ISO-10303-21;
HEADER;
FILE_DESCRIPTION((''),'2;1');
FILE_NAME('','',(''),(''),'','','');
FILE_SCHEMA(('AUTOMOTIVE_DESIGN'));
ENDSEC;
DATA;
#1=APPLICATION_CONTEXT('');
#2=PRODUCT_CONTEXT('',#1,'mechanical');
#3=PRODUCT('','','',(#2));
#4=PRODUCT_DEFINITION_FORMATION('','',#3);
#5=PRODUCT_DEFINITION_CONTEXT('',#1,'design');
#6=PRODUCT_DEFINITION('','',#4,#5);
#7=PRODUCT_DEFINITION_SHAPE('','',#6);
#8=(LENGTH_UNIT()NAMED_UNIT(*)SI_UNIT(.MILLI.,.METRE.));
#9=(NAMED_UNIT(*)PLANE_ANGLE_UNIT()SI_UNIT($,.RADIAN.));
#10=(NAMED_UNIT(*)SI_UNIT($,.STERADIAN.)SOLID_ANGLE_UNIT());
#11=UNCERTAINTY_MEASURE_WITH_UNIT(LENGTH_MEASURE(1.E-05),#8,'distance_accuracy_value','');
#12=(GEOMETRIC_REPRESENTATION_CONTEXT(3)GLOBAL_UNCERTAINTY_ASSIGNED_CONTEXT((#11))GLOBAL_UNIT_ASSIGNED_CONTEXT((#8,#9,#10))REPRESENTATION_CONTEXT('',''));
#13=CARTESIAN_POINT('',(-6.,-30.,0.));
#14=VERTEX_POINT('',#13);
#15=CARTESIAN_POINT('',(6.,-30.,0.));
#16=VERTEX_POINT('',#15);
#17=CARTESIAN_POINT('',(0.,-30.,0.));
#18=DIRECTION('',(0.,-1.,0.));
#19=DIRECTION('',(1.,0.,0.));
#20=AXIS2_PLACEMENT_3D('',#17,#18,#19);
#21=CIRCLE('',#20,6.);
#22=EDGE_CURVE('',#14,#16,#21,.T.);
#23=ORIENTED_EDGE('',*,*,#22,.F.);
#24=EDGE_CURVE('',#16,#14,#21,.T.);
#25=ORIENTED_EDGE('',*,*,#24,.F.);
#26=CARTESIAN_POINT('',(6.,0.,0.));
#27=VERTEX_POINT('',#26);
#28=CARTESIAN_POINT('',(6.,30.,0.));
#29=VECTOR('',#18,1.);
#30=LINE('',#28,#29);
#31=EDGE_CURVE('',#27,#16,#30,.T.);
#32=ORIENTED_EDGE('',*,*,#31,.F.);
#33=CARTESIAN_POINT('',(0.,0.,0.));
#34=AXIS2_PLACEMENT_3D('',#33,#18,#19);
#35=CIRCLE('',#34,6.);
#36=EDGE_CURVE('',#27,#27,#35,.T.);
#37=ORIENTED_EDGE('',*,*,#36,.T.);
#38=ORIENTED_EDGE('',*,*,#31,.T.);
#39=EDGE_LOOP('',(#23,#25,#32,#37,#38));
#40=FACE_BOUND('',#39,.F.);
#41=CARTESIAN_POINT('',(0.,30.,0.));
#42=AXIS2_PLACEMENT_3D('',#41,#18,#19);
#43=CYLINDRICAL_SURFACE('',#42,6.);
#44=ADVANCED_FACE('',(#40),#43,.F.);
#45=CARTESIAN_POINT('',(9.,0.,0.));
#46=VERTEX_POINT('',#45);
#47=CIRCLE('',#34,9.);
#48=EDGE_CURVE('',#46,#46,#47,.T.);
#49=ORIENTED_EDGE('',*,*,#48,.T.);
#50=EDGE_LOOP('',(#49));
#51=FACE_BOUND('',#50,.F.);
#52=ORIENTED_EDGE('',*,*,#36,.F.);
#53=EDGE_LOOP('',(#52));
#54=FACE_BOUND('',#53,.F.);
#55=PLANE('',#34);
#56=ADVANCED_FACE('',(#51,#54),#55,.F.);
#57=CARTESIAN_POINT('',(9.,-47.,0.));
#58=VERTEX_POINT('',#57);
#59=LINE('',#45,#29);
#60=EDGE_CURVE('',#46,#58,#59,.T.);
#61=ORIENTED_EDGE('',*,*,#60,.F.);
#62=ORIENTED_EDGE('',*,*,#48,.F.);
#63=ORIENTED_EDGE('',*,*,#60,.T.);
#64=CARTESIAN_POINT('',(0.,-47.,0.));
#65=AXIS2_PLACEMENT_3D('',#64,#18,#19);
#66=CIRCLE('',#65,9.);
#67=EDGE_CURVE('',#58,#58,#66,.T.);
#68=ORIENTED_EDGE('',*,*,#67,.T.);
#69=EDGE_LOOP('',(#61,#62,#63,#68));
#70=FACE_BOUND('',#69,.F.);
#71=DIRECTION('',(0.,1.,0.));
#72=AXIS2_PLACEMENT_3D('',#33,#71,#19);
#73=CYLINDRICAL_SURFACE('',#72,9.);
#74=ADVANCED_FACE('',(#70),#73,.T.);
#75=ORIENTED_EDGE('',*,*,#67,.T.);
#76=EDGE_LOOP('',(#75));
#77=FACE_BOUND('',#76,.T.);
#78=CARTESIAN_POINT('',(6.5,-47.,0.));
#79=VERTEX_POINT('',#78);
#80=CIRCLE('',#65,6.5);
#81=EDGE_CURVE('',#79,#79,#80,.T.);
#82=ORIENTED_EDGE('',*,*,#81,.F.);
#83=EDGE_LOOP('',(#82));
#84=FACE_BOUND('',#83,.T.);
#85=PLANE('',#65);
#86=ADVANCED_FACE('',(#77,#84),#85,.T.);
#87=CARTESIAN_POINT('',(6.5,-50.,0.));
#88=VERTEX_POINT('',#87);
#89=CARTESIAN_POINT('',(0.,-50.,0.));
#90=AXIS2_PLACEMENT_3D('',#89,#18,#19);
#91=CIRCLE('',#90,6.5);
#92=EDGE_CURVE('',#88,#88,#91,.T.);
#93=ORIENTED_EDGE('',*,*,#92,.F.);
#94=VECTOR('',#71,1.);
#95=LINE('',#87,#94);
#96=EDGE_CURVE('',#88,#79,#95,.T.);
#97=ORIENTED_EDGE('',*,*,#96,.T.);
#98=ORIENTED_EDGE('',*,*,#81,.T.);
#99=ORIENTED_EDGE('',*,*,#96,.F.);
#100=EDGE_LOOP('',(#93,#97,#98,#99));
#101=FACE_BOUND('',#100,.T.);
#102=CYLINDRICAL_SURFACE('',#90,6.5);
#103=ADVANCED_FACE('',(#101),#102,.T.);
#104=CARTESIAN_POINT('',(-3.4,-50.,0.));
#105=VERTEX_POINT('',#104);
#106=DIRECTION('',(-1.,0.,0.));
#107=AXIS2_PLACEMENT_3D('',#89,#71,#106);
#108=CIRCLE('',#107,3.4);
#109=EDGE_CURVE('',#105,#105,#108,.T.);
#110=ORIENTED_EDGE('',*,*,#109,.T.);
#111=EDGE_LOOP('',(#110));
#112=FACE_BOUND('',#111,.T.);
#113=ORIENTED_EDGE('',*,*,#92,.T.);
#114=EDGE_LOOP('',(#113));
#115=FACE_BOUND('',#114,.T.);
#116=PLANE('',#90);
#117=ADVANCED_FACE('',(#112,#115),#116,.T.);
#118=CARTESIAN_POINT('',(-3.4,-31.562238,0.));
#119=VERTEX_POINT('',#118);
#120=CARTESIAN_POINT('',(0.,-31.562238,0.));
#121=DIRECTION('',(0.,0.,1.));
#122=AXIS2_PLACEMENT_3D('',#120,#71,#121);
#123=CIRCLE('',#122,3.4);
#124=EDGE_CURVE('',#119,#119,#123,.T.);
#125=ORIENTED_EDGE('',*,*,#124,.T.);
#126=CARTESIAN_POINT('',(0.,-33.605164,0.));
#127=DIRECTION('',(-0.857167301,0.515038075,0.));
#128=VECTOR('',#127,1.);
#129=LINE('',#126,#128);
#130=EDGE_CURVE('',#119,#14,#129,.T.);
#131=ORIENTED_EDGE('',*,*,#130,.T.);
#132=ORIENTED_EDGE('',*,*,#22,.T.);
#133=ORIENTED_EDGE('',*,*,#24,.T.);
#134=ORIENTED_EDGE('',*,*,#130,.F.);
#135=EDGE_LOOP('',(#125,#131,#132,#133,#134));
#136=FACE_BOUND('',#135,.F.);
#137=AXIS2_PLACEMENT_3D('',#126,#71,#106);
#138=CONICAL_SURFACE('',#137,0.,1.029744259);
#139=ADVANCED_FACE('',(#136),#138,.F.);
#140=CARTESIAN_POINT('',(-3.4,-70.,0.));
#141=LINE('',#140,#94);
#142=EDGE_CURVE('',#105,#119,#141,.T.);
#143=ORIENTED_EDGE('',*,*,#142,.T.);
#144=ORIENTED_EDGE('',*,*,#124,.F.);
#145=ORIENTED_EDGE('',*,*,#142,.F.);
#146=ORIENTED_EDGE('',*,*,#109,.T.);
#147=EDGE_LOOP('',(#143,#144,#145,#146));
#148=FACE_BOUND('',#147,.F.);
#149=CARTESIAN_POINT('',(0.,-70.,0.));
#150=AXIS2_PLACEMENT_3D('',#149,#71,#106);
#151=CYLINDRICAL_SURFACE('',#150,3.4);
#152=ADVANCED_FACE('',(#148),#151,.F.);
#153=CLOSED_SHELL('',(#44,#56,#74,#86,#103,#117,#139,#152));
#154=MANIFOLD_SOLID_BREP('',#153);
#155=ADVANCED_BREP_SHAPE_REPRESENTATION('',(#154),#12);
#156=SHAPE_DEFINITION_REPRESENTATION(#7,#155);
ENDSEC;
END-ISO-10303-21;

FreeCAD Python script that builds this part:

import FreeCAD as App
import Part
import Sketcher

V = App.Vector
Q = App.Units.Quantity

doc = App.newDocument("Part")
body = doc.addObject("PartDesign::Body", "Body")

sketch1 = doc.addObject("Sketcher::SketchObject", "Sketch")
body.addObject(sketch1)
sketch1.AttachmentSupport = (doc.XZ_Plane, [""])
sketch1.MapMode = "FlatFace"
sketch1.addGeometry(Part.Circle(V(0, 0, 0), V(0, 0, 1), 9), False)
sketch1.addConstraint(Sketcher.Constraint("Coincident", 0, 3, -1, 1))
sketch1.addConstraint(Sketcher.Constraint("Diameter", 0, Q("18 mm")))
pad1 = doc.addObject("PartDesign::Pad", "Pad")
body.addObject(pad1)
pad1.Profile = sketch1
pad1.Length = 50

sketch2 = doc.addObject("Sketcher::SketchObject", "Sketch001")
body.addObject(sketch2)
sketch2.AttachmentSupport = (doc.XZ_Plane, [""])
sketch2.MapMode = "FlatFace"
sketch2.AttachmentOffset = App.Placement(V(0, 0, 50), App.Rotation())
sketch2.addGeometry(Part.Circle(V(0, 0, 0), V(0, 0, 1), 9), False)
sketch2.addGeometry(Part.Circle(V(0, 0, 0), V(0, 0, 1), 6.5), False)
sketch2.addConstraint(Sketcher.Constraint("Coincident", 0, 3, -1, 1))
sketch2.addConstraint(Sketcher.Constraint("Coincident", 1, 3, -1, 1))
sketch2.addConstraint(Sketcher.Constraint("Diameter", 0, Q("18 mm")))
sketch2.addConstraint(Sketcher.Constraint("Diameter", 1, Q("13 mm")))
pocket1 = doc.addObject("PartDesign::Pocket", "Pocket")
body.addObject(pocket1)
pocket1.Profile = sketch2
pocket1.Length = 3

sketch3 = doc.addObject("Sketcher::SketchObject", "Sketch002")
body.addObject(sketch3)
sketch3.AttachmentSupport = (doc.XZ_Plane, [""])
sketch3.MapMode = "FlatFace"
sketch3.AttachmentOffset = App.Placement(V(0, 0, 50), App.Rotation())
sketch3.addGeometry(Part.Circle(V(0, 0, 0), V(0, 0, 1), 3.4), False)
sketch3.addConstraint(Sketcher.Constraint("Coincident", 0, 3, -1, 1))
sketch3.addConstraint(Sketcher.Constraint("Diameter", 0, Q("6.8 mm")))
doc.recompute()
hole = doc.addObject("PartDesign::Hole", "Hole")
body.addObject(hole)
hole.Profile = sketch3
hole.ThreadType = "None"
hole.Diameter = 6.8
hole.DepthType = "Dimension"
hole.Depth = 20
hole.DrillPoint = "Angled"
hole.DrillPointAngle = 118

sketch4 = doc.addObject("Sketcher::SketchObject", "Sketch003")
body.addObject(sketch4)
sketch4.AttachmentSupport = (doc.XZ_Plane, [""])
sketch4.MapMode = "FlatFace"
sketch4.addGeometry(Part.Circle(V(0, 0, 0), V(0, 0, 1), 6), False)
sketch4.addConstraint(Sketcher.Constraint("Coincident", 0, 3, -1, 1))
sketch4.addConstraint(Sketcher.Constraint("Diameter", 0, Q("12 mm")))
doc.recompute()
hole2 = doc.addObject("PartDesign::Hole", "Hole001")
body.addObject(hole2)
hole2.Profile = sketch4
hole2.ThreadType = "None"
hole2.Diameter = 12
hole2.DepthType = "Dimension"
hole2.Depth = 30
hole2.DrillPoint = "Angled"
hole2.DrillPointAngle = 118
hole2.Reversed = True

doc.recompute()
